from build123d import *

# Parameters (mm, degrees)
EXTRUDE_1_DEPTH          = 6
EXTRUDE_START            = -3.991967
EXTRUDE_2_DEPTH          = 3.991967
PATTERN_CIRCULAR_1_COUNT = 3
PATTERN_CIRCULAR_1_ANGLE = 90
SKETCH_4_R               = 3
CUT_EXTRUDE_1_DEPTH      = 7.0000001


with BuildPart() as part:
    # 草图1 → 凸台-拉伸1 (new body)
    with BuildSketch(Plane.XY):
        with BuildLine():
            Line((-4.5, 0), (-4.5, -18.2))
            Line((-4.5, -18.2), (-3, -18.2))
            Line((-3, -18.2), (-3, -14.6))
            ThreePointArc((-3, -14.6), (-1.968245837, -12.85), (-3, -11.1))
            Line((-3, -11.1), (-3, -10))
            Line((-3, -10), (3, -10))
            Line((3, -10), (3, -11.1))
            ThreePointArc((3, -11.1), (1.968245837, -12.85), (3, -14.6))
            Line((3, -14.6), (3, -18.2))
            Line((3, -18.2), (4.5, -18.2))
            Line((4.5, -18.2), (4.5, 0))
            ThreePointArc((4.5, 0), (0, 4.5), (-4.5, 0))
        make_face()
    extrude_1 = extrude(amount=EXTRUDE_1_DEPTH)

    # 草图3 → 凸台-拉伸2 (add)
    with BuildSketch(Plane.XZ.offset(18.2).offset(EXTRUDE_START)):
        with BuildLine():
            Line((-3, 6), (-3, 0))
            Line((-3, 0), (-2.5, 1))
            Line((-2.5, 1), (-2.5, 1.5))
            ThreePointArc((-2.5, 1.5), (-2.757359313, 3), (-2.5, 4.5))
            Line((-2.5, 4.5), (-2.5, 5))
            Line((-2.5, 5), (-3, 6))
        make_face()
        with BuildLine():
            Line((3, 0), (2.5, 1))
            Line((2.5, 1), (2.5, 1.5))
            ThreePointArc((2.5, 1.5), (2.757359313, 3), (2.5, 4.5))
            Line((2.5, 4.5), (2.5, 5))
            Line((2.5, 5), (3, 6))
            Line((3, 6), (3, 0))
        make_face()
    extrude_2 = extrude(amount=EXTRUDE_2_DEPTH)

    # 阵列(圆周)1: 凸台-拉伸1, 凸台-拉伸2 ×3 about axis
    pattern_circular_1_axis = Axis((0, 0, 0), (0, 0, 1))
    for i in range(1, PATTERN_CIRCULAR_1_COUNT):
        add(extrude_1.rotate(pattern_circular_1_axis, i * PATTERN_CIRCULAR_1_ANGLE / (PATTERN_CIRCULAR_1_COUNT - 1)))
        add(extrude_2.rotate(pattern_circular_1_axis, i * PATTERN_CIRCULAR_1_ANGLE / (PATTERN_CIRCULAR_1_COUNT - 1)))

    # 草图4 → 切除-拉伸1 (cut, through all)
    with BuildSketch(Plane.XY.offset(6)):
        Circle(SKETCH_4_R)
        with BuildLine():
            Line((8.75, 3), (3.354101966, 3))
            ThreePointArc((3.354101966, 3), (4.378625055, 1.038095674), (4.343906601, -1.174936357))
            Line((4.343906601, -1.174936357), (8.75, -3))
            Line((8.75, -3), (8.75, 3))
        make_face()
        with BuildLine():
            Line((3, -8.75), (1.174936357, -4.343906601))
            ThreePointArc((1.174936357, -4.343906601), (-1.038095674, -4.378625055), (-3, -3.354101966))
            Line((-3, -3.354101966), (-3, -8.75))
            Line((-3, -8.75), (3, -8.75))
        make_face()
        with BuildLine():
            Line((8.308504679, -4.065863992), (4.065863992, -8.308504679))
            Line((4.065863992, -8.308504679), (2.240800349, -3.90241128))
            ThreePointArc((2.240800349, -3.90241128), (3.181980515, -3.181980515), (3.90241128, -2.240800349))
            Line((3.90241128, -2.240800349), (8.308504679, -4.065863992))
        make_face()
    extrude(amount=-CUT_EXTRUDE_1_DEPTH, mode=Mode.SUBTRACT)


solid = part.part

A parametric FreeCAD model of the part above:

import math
import FreeCAD as App
import Part
import Sketcher

V = App.Vector
Q = App.Units.Quantity

doc = App.newDocument("Part")
body = doc.addObject("PartDesign::Body", "Body")

sketch1 = body.newObject("Sketcher::SketchObject", "Sketch")
sketch1.AttachmentSupport = (doc.getObject("XY_Plane"), [""])
sketch1.MapMode = "FlatFace"
sketch1.addGeometry(Part.LineSegment(V(-4.5, 0, 0), V(-4.5, -18.2, 0)), False)
sketch1.addGeometry(Part.LineSegment(V(-4.5, -18.2, 0), V(-3, -18.2, 0)), False)
sketch1.addGeometry(Part.LineSegment(V(-3, -18.2, 0), V(-3, -14.6, 0)), False)
sketch1.addGeometry(Part.ArcOfCircle(Part.Circle(V(-3.968246, -12.85, 0), V(0, 0, 1), 2), math.radians(-61.044976), math.radians(61.044976)), False)
sketch1.addGeometry(Part.LineSegment(V(-3, -11.1, 0), V(-3, -10, 0)), False)
sketch1.addGeometry(Part.LineSegment(V(-3, -10, 0), V(3, -10, 0)), False)
sketch1.addGeometry(Part.LineSegment(V(3, -10, 0), V(3, -11.1, 0)), False)
sketch1.addGeometry(Part.ArcOfCircle(Part.Circle(V(3.968246, -12.85, 0), V(0, 0, 1), 2), math.radians(118.955024), math.radians(241.044976)), False)
sketch1.addGeometry(Part.LineSegment(V(3, -14.6, 0), V(3, -18.2, 0)), False)
sketch1.addGeometry(Part.LineSegment(V(3, -18.2, 0), V(4.5, -18.2, 0)), False)
sketch1.addGeometry(Part.LineSegment(V(4.5, -18.2, 0), V(4.5, 0, 0)), False)
sketch1.addGeometry(Part.ArcOfCircle(Part.Circle(V(0, 0, 0), V(0, 0, 1), 4.5), math.radians(0), math.radians(180)), False)
sketch1.addConstraint(Sketcher.Constraint("Coincident", 0, 2, 1, 1))
sketch1.addConstraint(Sketcher.Constraint("Coincident", 1, 2, 2, 1))
sketch1.addConstraint(Sketcher.Constraint("Coincident", 2, 2, 3, 1))
sketch1.addConstraint(Sketcher.Constraint("Coincident", 3, 2, 4, 1))
sketch1.addConstraint(Sketcher.Constraint("Coincident", 4, 2, 5, 1))
sketch1.addConstraint(Sketcher.Constraint("Coincident", 5, 2, 6, 1))
sketch1.addConstraint(Sketcher.Constraint("Coincident", 6, 2, 7, 1))
sketch1.addConstraint(Sketcher.Constraint("Coincident", 7, 2, 8, 1))
sketch1.addConstraint(Sketcher.Constraint("Coincident", 8, 2, 9, 1))
sketch1.addConstraint(Sketcher.Constraint("Coincident", 9, 2, 10, 1))
sketch1.addConstraint(Sketcher.Constraint("Tangent", 10, 2, 11, 1))
sketch1.addConstraint(Sketcher.Constraint("Tangent", 11, 2, 0, 1))
sketch1.addConstraint(Sketcher.Constraint("Vertical", 0))
sketch1.addConstraint(Sketcher.Constraint("Horizontal", 1))
sketch1.addConstraint(Sketcher.Constraint("Vertical", 2))
sketch1.addConstraint(Sketcher.Constraint("Vertical", 4))
sketch1.addConstraint(Sketcher.Constraint("Horizontal", 5))
sketch1.addConstraint(Sketcher.Constraint("Vertical", 6))
sketch1.addConstraint(Sketcher.Constraint("Vertical", 8))
sketch1.addConstraint(Sketcher.Constraint("Horizontal", 9))
sketch1.addConstraint(Sketcher.Constraint("Vertical", 10))
sketch1.addConstraint(Sketcher.Constraint("Coincident", 11, 3, -1, 1))
sketch1.addConstraint(Sketcher.Constraint("Equal", 3, 7))
sketch1.addConstraint(Sketcher.Constraint("Symmetric", 3, 3, 7, 3, -2))
sketch1.addConstraint(Sketcher.Constraint("Symmetric", 1, 2, 8, 2, -2))
sketch1.addConstraint(Sketcher.Constraint("Horizontal", 3, 2, 6, 2))
sketch1.addConstraint(Sketcher.Constraint("Vertical", 2, 2, 3, 2))
sketch1.addConstraint(Sketcher.Constraint("Radius", 3, 2.0))
sketch1.addConstraint(Sketcher.Constraint("Radius", 11, 4.5))
sketch1.addConstraint(Sketcher.Constraint("DistanceX", 5, 1, 5, 2, 6.0))
sketch1.addConstraint(Sketcher.Constraint("DistanceY", 0, 2, 0, 1, 18.2))
sketch1.addConstraint(Sketcher.Constraint("DistanceY", 2, 1, 2, 2, 3.6))
sketch1.addConstraint(Sketcher.Constraint("DistanceY", 4, 1, 4, 2, 1.1))
sketch1.addConstraint(Sketcher.Constraint("DistanceY", 4, 2, -1, 1, 10.0))
pad1 = body.newObject("PartDesign::Pad", "Pad")
pad1.Profile = sketch1
pad1.Length = 6

sketch2 = body.newObject("Sketcher::SketchObject", "Sketch001")
sketch2.AttachmentSupport = (doc.getObject("XZ_Plane"), [""])
sketch2.MapMode = "FlatFace"
sketch2.AttachmentOffset = App.Placement(V(0, 0, 14.208033), App.Rotation())
sketch2.addGeometry(Part.LineSegment(V(-3, 6, 0), V(-3, 0, 0)), False)
sketch2.addGeometry(Part.LineSegment(V(-3, 0, 0), V(-2.5, 1, 0)), False)
sketch2.addGeometry(Part.LineSegment(V(-2.5, 1, 0), V(-2.5, 1.5, 0)), False)
sketch2.addGeometry(Part.ArcOfCircle(Part.Circle(V(1.742641, 3, 0), V(0, 0, 1), 4.5), math.radians(160.528779), math.radians(199.471221)), False)
sketch2.addGeometry(Part.LineSegment(V(-2.5, 4.5, 0), V(-2.5, 5, 0)), False)
sketch2.addGeometry(Part.LineSegment(V(-2.5, 5, 0), V(-3, 6, 0)), False)
sketch2.addGeometry(Part.LineSegment(V(2.5, 1, 0), V(3, 0, 0)), False)
sketch2.addGeometry(Part.LineSegment(V(3, 0, 0), V(3, 6, 0)), False)
sketch2.addGeometry(Part.LineSegment(V(3, 6, 0), V(2.5, 5, 0)), False)
sketch2.addGeometry(Part.LineSegment(V(2.5, 5, 0), V(2.5, 4.5, 0)), False)
sketch2.addGeometry(Part.ArcOfCircle(Part.Circle(V(-1.742641, 3, 0), V(0, 0, 1), 4.5), math.radians(-19.471221), math.radians(19.471221)), False)
sketch2.addGeometry(Part.LineSegment(V(2.5, 1.5, 0), V(2.5, 1, 0)), False)
sketch2.addConstraint(Sketcher.Constraint("Coincident", 0, 2, 1, 1))
sketch2.addConstraint(Sketcher.Constraint("Coincident", 1, 2, 2, 1))
sketch2.addConstraint(Sketcher.Constraint("Coincident", 2, 2, 3, 2))
sketch2.addConstraint(Sketcher.Constraint("Coincident", 3, 1, 4, 1))
sketch2.addConstraint(Sketcher.Constraint("Coincident", 4, 2, 5, 1))
sketch2.addConstraint(Sketcher.Constraint("Coincident", 5, 2, 0, 1))
sketch2.addConstraint(Sketcher.Constraint("Coincident", 6, 2, 7, 1))
sketch2.addConstraint(Sketcher.Constraint("Coincident", 7, 2, 8, 1))
sketch2.addConstraint(Sketcher.Constraint("Coincident", 8, 2, 9, 1))
sketch2.addConstraint(Sketcher.Constraint("Coincident", 9, 2, 10, 2))
sketch2.addConstraint(Sketcher.Constraint("Coincident", 10, 1, 11, 1))
sketch2.addConstraint(Sketcher.Constraint("Coincident", 11, 2, 6, 1))
sketch2.addConstraint(Sketcher.Constraint("Vertical", 0))
sketch2.addConstraint(Sketcher.Constraint("Vertical", 2))
sketch2.addConstraint(Sketcher.Constraint("Vertical", 4))
sketch2.addConstraint(Sketcher.Constraint("Vertical", 7))
sketch2.addConstraint(Sketcher.Constraint("Vertical", 9))
sketch2.addConstraint(Sketcher.Constraint("Vertical", 11))
sketch2.addConstraint(Sketcher.Constraint("Equal", 3, 10))
sketch2.addConstraint(Sketcher.Constraint("Symmetric", 0, 2, 6, 2, -1, 1))
sketch2.addConstraint(Sketcher.Constraint("Symmetric", 3, 3, 10, 3, -2))
sketch2.addConstraint(Sketcher.Constraint("Symmetric", 4, 2, 8, 2, -2))
sketch2.addConstraint(Sketcher.Constraint("Symmetric", 1, 2, 11, 2, -2))
sketch2.addConstraint(Sketcher.Constraint("PointOnObject", 0, 2, -1))
sketch2.addConstraint(Sketcher.Constraint("Parallel", 5, 6))
sketch2.addConstraint(Sketcher.Constraint("Parallel", 1, 8))
sketch2.addConstraint(Sketcher.Constraint("Vertical", 2, 2, 3, 1))
sketch2.addConstraint(Sketcher.Constraint("Equal", 2, 4))
sketch2.addConstraint(Sketcher.Constraint("Radius", 3, 4.5))
sketch2.addConstraint(Sketcher.Constraint("DistanceY", 0, 2, 0, 1, 6.0))
sketch2.addConstraint(Sketcher.Constraint("DistanceY", 2, 1, 2, 2, 0.5))
sketch2.addConstraint(Sketcher.Constraint("DistanceX", 0, 2, -1, 1, 3.0))
sketch2.addConstraint(Sketcher.Constraint("DistanceY", -1, 1, 1, 2, 1.0))
sketch2.addConstraint(Sketcher.Constraint("DistanceX", 4, 2, 8, 2, 5.0))
pad2 = body.newObject("PartDesign::Pad", "Pad001")
pad2.Profile = sketch2
pad2.Length = 3.991967
doc.recompute()

polarpattern = body.newObject("PartDesign::PolarPattern", "PolarPattern")
polarpattern.Originals = [pad1, pad2]
polarpattern.Axis = (doc.getObject("Z_Axis"), [""])
polarpattern.Angle = 90
polarpattern.Occurrences = 3
body.Tip = polarpattern

sketch3 = body.newObject("Sketcher::SketchObject", "Sketch002")
sketch3.AttachmentSupport = (doc.getObject("XY_Plane"), [""])
sketch3.MapMode = "FlatFace"
sketch3.AttachmentOffset = App.Placement(V(0, 0, 6), App.Rotation())
sketch3.addGeometry(Part.Circle(V(0, 0, 0), V(0, 0, 1), 3), False)
sketch3.addGeometry(Part.LineSegment(V(8.75, 3, 0), V(3.354102, 3, 0)), False)
sketch3.addGeometry(Part.ArcOfCircle(Part.Circle(V(0, 0, 0), V(0, 0, 1), 4.5), math.radians(-15.135162), math.radians(41.810315)), False)
sketch3.addGeometry(Part.LineSegment(V(4.343907, -1.174936, 0), V(8.75, -3, 0)), False)
sketch3.addGeometry(Part.LineSegment(V(8.75, -3, 0), V(8.75, 3, 0)), False)
sketch3.addGeometry(Part.LineSegment(V(3, -8.75, 0), V(1.174936, -4.343907, 0)), False)
sketch3.addGeometry(Part.ArcOfCircle(Part.Circle(V(0, 0, 0), V(0, 0, 1), 4.5), math.radians(-131.810315), math.radians(-74.864838)), False)
sketch3.addGeometry(Part.LineSegment(V(-3, -3.354102, 0), V(-3, -8.75, 0)), False)
sketch3.addGeometry(Part.LineSegment(V(-3, -8.75, 0), V(3, -8.75, 0)), False)
sketch3.addGeometry(Part.LineSegment(V(4.065864, -8.308505, 0), V(8.308505, -4.065864, 0)), False)
sketch3.addGeometry(Part.LineSegment(V(8.308505, -4.065864, 0), V(3.902411, -2.2408, 0)), False)
sketch3.addGeometry(Part.ArcOfCircle(Part.Circle(V(0, 0, 0), V(0, 0, 1), 4.5), math.radians(-60.135162), math.radians(-29.864838)), False)
sketch3.addGeometry(Part.LineSegment(V(2.2408, -3.902411, 0), V(4.065864, -8.308505, 0)), False)
sketch3.addConstraint(Sketcher.Constraint("Coincident", 1, 2, 2, 2))
sketch3.addConstraint(Sketcher.Constraint("Coincident", 2, 1, 3, 1))
sketch3.addConstraint(Sketcher.Constraint("Coincident", 3, 2, 4, 1))
sketch3.addConstraint(Sketcher.Constraint("Coincident", 4, 2, 1, 1))
sketch3.addConstraint(Sketcher.Constraint("Coincident", 5, 2, 6, 2))
sketch3.addConstraint(Sketcher.Constraint("Coincident", 6, 1, 7, 1))
sketch3.addConstraint(Sketcher.Constraint("Coincident", 7, 2, 8, 1))
sketch3.addConstraint(Sketcher.Constraint("Coincident", 8, 2, 5, 1))
sketch3.addConstraint(Sketcher.Constraint("Coincident", 9, 2, 10, 1))
sketch3.addConstraint(Sketcher.Constraint("Coincident", 10, 2, 11, 2))
sketch3.addConstraint(Sketcher.Constraint("Coincident", 11, 1, 12, 1))
sketch3.addConstraint(Sketcher.Constraint("Coincident", 12, 2, 9, 1))
sketch3.addConstraint(Sketcher.Constraint("Horizontal", 1))
sketch3.addConstraint(Sketcher.Constraint("Vertical", 4))
sketch3.addConstraint(Sketcher.Constraint("Vertical", 7))
sketch3.addConstraint(Sketcher.Constraint("Horizontal", 8))
sketch3.addConstraint(Sketcher.Constraint("Coincident", 0, 3, -1, 1))
sketch3.addConstraint(Sketcher.Constraint("Coincident", 2, 3, -1, 1))
sketch3.addConstraint(Sketcher.Constraint("Coincident", 6, 3, -1, 1))
sketch3.addConstraint(Sketcher.Constraint("Coincident", 11, 3, -1, 1))
sketch3.addConstraint(Sketcher.Constraint("Equal", 2, 6))
sketch3.addConstraint(Sketcher.Constraint("Equal", 6, 11))
sketch3.addConstraint(Sketcher.Constraint("Parallel", 3, 10))
sketch3.addConstraint(Sketcher.Constraint("Parallel", 5, 12))
sketch3.addConstraint(Sketcher.Constraint("Equal", 8, 4))
sketch3.addConstraint(Sketcher.Constraint("Equal", 1, 7))
sketch3.addConstraint(Sketcher.Constraint("Equal", 3, 5))
sketch3.addConstraint(Sketcher.Constraint("Equal", 5, 10))
sketch3.addConstraint(Sketcher.Constraint("Equal", 10, 12))
sketch3.addConstraint(Sketcher.Constraint("Diameter", 0, 6.0))
sketch3.addConstraint(Sketcher.Constraint("Radius", 2, 4.5))
sketch3.addConstraint(Sketcher.Constraint("DistanceX", 8, 1, 8, 2, 6.0))
sketch3.addConstraint(Sketcher.Constraint("Angle", 9, Q("45 deg")))
sketch3.addConstraint(Sketcher.Constraint("Distance", 9, 6.0))
sketch3.addConstraint(Sketcher.Constraint("DistanceY", -1, 1, 1, 2, 3.0))
sketch3.addConstraint(Sketcher.Constraint("DistanceX", 6, 1, -1, 1, 3.0))
sketch3.addConstraint(Sketcher.Constraint("Angle", 3, Q("-22.5 deg")))
sketch3.addConstraint(Sketcher.Constraint("DistanceX", -1, 1, 3, 2, 8.75))
pocket1 = body.newObject("PartDesign::Pocket", "Pocket")
pocket1.Profile = sketch3
pocket1.Type = "ThroughAll"

doc.recompute()
